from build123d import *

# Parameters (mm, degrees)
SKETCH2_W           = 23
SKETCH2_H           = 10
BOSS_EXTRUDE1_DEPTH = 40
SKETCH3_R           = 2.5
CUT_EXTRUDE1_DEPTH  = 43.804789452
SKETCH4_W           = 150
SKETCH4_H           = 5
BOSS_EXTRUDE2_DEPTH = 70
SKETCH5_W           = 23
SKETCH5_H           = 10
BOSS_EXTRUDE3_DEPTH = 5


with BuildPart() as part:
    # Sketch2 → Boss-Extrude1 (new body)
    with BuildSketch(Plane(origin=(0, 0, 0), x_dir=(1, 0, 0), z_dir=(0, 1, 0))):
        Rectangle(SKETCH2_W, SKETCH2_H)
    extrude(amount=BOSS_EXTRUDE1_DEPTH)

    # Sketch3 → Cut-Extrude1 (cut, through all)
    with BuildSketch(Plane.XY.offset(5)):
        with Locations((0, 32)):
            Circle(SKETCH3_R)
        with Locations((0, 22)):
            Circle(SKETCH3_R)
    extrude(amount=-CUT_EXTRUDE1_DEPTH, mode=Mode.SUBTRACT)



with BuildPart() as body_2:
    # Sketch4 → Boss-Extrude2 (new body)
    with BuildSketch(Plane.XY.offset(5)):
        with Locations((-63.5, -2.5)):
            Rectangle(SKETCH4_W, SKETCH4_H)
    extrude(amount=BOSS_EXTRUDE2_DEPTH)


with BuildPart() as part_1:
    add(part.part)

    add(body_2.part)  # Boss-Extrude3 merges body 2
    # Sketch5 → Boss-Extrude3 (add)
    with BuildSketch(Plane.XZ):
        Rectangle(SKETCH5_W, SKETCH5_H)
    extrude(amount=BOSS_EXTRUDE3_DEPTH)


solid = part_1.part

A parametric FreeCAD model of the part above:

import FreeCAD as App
import Part
import Sketcher

doc = App.newDocument("Part")
body = doc.addObject("PartDesign::Body", "Body")

sketch1 = body.newObject("Sketcher::SketchObject", "Sketch")
sketch1.AttachmentSupport = (doc.getObject("XZ_Plane"), [""])
sketch1.MapMode = "FlatFace"
sketch1.addGeometry([
    Part.LineSegment(App.Vector(-12, -5, 0), App.Vector(-12, 5, 0)),
    Part.LineSegment(App.Vector(-12, 5, 0), App.Vector(12, 5, 0)),
    Part.LineSegment(App.Vector(12, 5, 0), App.Vector(12, -5, 0)),
    Part.LineSegment(App.Vector(12, -5, 0), App.Vector(-12, -5, 0)),
], False)
sketch1.addConstraint([
    Sketcher.Constraint("Coincident", 0, 2, 1, 1),
    Sketcher.Constraint("Coincident", 1, 2, 2, 1),
    Sketcher.Constraint("Coincident", 2, 2, 3, 1),
    Sketcher.Constraint("Coincident", 3, 2, 0, 1),
    Sketcher.Constraint("Vertical", 0),
    Sketcher.Constraint("Horizontal", 1),
    Sketcher.Constraint("Vertical", 2),
    Sketcher.Constraint("Horizontal", 3),
    Sketcher.Constraint("Symmetric", 0, 2, 2, 2, -1, 1),
    Sketcher.Constraint("DistanceX", 1, 1, 1, 2, 23.0),
    Sketcher.Constraint("DistanceY", 0, 1, 0, 2, 10.0),
])
pad1 = body.newObject("PartDesign::Pad", "Pad")
pad1.Profile = sketch1
pad1.Length = 40
pad1.Reversed = True

sketch2 = body.newObject("Sketcher::SketchObject", "Sketch001")
sketch2.AttachmentSupport = (doc.getObject("XY_Plane"), [""])
sketch2.MapMode = "FlatFace"
sketch2.AttachmentOffset = App.Placement(App.Vector(0, 0, 5), App.Rotation())
sketch2.addGeometry([
    Part.Circle(App.Vector(0, 32, 0), App.Vector(0, 0, 1), 2.5),
    Part.Circle(App.Vector(0, 22, 0), App.Vector(0, 0, 1), 2.5),
], False)
sketch2.addConstraint([
    Sketcher.Constraint("Equal", 0, 1),
    Sketcher.Constraint("PointOnObject", 0, 3, -2),
    Sketcher.Constraint("PointOnObject", 1, 3, -2),
    Sketcher.Constraint("Diameter", 0, 5.0),
    Sketcher.Constraint("DistanceY", -1, 1, 0, 3, 32.0),
    Sketcher.Constraint("DistanceY", -1, 1, 1, 3, 22.0),
])
pocket1 = body.newObject("PartDesign::Pocket", "Pocket")
pocket1.Profile = sketch2
pocket1.Type = "ThroughAll"
body2 = doc.addObject("PartDesign::Body", "Body001")

sketch3 = body2.newObject("Sketcher::SketchObject", "Sketch002")
sketch3.AttachmentSupport = (doc.getObject("XY_Plane001"), [""])
sketch3.MapMode = "FlatFace"
sketch3.AttachmentOffset = App.Placement(App.Vector(0, 0, 5), App.Rotation())
sketch3.addGeometry([
    Part.LineSegment(App.Vector(-138, 0, 0), App.Vector(-138, -5, 0)),
    Part.LineSegment(App.Vector(-138, -5, 0), App.Vector(12, -5, 0)),
    Part.LineSegment(App.Vector(12, -5, 0), App.Vector(12, 0, 0)),
    Part.LineSegment(App.Vector(12, 0, 0), App.Vector(-138, 0, 0)),
], False)
sketch3.addConstraint([
    Sketcher.Constraint("Coincident", 0, 2, 1, 1),
    Sketcher.Constraint("Coincident", 1, 2, 2, 1),
    Sketcher.Constraint("Coincident", 2, 2, 3, 1),
    Sketcher.Constraint("Coincident", 3, 2, 0, 1),
    Sketcher.Constraint("Vertical", 0),
    Sketcher.Constraint("Horizontal", 1),
    Sketcher.Constraint("Vertical", 2),
    Sketcher.Constraint("Horizontal", 3),
    Sketcher.Constraint("PointOnObject", 2, 2, -1),
    Sketcher.Constraint("DistanceX", 1, 1, 1, 2, 150.0),
    Sketcher.Constraint("DistanceY", 0, 2, 0, 1, 5.0),
    Sketcher.Constraint("DistanceX", 0, 2, -1, 1, 138.5),
])
pad2 = body2.newObject("PartDesign::Pad", "Pad001")
pad2.Profile = sketch3
pad2.Length = 70
body.AllowCompound = True
doc.recompute()

boolean = body.newObject("PartDesign::Boolean", "Boolean")
boolean.Type = "Fuse"
boolean.addObjects([body2])

sketch4 = body.newObject("Sketcher::SketchObject", "Sketch003")
sketch4.AttachmentSupport = (doc.getObject("XZ_Plane"), [""])
sketch4.MapMode = "FlatFace"
sketch4.addGeometry([
    Part.LineSegment(App.Vector(-12, 5, 0), App.Vector(-12, -5, 0)),
    Part.LineSegment(App.Vector(-12, -5, 0), App.Vector(12, -5, 0)),
    Part.LineSegment(App.Vector(12, -5, 0), App.Vector(12, 5, 0)),
    Part.LineSegment(App.Vector(12, 5, 0), App.Vector(-12, 5, 0)),
], False)
sketch4.addConstraint([
    Sketcher.Constraint("Coincident", 0, 2, 1, 1),
    Sketcher.Constraint("Coincident", 1, 2, 2, 1),
    Sketcher.Constraint("Coincident", 2, 2, 3, 1),
    Sketcher.Constraint("Coincident", 3, 2, 0, 1),
    Sketcher.Constraint("Vertical", 0),
    Sketcher.Constraint("Horizontal", 1),
    Sketcher.Constraint("Vertical", 2),
    Sketcher.Constraint("Horizontal", 3),
    Sketcher.Constraint("Symmetric", 0, 2, 2, 2, -1, 1),
    Sketcher.Constraint("DistanceX", 1, 1, 1, 2, 23.0),
    Sketcher.Constraint("DistanceY", 0, 2, 0, 1, 10.0),
])
pad3 = body.newObject("PartDesign::Pad", "Pad002")
pad3.Profile = sketch4
pad3.Length = 5

doc.recompute()
